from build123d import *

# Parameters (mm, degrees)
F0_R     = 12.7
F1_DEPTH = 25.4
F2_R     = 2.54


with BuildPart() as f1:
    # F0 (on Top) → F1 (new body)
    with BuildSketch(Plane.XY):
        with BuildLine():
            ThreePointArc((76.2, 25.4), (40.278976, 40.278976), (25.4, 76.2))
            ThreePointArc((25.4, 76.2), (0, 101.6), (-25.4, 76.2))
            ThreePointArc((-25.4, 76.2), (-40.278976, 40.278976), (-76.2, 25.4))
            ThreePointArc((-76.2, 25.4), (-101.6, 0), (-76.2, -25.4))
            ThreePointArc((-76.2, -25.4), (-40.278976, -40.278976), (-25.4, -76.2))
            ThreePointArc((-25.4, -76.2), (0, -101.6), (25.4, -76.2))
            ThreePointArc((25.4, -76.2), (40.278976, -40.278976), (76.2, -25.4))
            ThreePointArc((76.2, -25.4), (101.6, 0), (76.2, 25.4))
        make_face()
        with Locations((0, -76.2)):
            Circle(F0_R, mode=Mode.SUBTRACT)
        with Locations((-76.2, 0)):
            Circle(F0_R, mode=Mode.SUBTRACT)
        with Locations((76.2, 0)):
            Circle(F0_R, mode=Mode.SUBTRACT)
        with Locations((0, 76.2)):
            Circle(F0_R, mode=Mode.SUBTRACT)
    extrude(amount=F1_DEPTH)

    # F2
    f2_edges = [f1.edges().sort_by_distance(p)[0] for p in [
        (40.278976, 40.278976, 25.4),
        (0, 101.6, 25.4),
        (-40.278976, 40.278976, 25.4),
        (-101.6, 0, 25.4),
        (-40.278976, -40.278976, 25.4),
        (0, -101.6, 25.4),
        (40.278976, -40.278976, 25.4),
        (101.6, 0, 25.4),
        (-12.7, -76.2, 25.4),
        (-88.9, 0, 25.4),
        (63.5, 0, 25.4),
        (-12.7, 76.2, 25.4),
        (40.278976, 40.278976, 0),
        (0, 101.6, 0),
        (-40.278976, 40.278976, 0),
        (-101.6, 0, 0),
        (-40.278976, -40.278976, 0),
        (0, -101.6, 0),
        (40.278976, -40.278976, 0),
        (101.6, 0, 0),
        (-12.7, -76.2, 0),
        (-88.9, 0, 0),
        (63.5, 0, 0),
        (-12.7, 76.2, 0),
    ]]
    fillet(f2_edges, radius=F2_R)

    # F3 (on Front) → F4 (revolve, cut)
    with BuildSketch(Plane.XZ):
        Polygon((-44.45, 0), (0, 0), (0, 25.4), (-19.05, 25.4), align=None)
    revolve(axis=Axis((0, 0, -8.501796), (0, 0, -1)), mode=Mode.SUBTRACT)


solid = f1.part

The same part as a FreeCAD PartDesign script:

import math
import FreeCAD as App
import Part
import Sketcher

V = App.Vector
Q = App.Units.Quantity


def edges_at(feature, points):
    """Names of the edges that pass closest to the given points."""
    edges = feature.Shape.Edges
    near = lambda p: min(range(len(edges)), key=lambda i: edges[i].distToShape(Part.Vertex(*p))[0])
    return sorted({f"Edge{near(p) + 1}" for p in points})


def add_polygon(sketch, points):
    """Adds a closed chain of lines whose ends are joined by coincident constraints."""
    first, n = sketch.GeometryCount, len(points)
    for a, b in zip(points, points[1:] + points[:1]):
        sketch.addGeometry(Part.LineSegment(App.Vector(*a, 0), App.Vector(*b, 0)), False)
    for i in range(n):
        sketch.addConstraint(Sketcher.Constraint("Coincident", first + i, 2, first + (i + 1) % n, 1))

doc = App.newDocument("Part")
params = doc.addObject("Spreadsheet::Sheet", "Params")
for row, (alias, value) in enumerate([
    ("sketch1_diameter", "1 in"),
    ("sketch1_radius", "2.0000001 in"),
    ("sketch1_radius2", "1 in"),
    ("pad1_length", "1 in"),
    ("fillet_radius", "0.1 in"),
    ("sketch2_height", "1 in"),
    ("sketch2_width", "1.75 in"),
    ("groove_angle", "360 deg"),
], start=1):
    params.set(f"A{row}", alias)
    params.set(f"B{row}", "=" + value)
    params.setAlias(f"B{row}", alias)

body = doc.addObject("PartDesign::Body", "Body")

sketch1 = body.newObject("Sketcher::SketchObject", "Sketch")
sketch1.AttachmentSupport = (doc.getObject("XY_Plane"), [""])
sketch1.MapMode = "FlatFace"
sketch1.addGeometry(Part.ArcOfCircle(Part.Circle(V(76, 76, 0), V(0, 0, 1), 51), math.radians(-180), math.radians(-90)), False)
sketch1.addGeometry(Part.ArcOfCircle(Part.Circle(V(0, 76, 0), V(0, 0, 1), 25), math.radians(0), math.radians(180)), False)
sketch1.addGeometry(Part.ArcOfCircle(Part.Circle(V(-76, 76, 0), V(0, 0, 1), 51), math.radians(-90), math.radians(0)), False)
sketch1.addGeometry(Part.ArcOfCircle(Part.Circle(V(-76, 0, 0), V(0, 0, 1), 25), math.radians(90), math.radians(270)), False)
sketch1.addGeometry(Part.ArcOfCircle(Part.Circle(V(-76, -76, 0), V(0, 0, 1), 51), math.radians(0), math.radians(90)), False)
sketch1.addGeometry(Part.ArcOfCircle(Part.Circle(V(0, -76, 0), V(0, 0, 1), 25), math.radians(180), math.radians(360)), False)
sketch1.addGeometry(Part.ArcOfCircle(Part.Circle(V(76, -76, 0), V(0, 0, 1), 51), math.radians(90), math.radians(180)), False)
sketch1.addGeometry(Part.ArcOfCircle(Part.Circle(V(76, 0, 0), V(0, 0, 1), 25), math.radians(-90), math.radians(90)), False)
sketch1.addGeometry(Part.Circle(V(0, -76, 0), V(0, 0, 1), 13), False)
sketch1.addGeometry(Part.Circle(V(-76, 0, 0), V(0, 0, 1), 13), False)
sketch1.addGeometry(Part.Circle(V(76, 0, 0), V(0, 0, 1), 13), False)
sketch1.addGeometry(Part.Circle(V(0, 76, 0), V(0, 0, 1), 13), False)
sketch1.addConstraint(Sketcher.Constraint("Tangent", 0, 1, 1, 1))
sketch1.addConstraint(Sketcher.Constraint("Tangent", 1, 2, 2, 2))
sketch1.addConstraint(Sketcher.Constraint("Tangent", 2, 1, 3, 1))
sketch1.addConstraint(Sketcher.Constraint("Tangent", 3, 2, 4, 2))
sketch1.addConstraint(Sketcher.Constraint("Tangent", 4, 1, 5, 1))
sketch1.addConstraint(Sketcher.Constraint("Tangent", 5, 2, 6, 2))
sketch1.addConstraint(Sketcher.Constraint("Tangent", 6, 1, 7, 1))
sketch1.addConstraint(Sketcher.Constraint("Tangent", 7, 2, 0, 2))
sketch1.addConstraint(Sketcher.Constraint("Coincident", 8, 3, 5, 3))
sketch1.addConstraint(Sketcher.Constraint("Coincident", 9, 3, 3, 3))
sketch1.addConstraint(Sketcher.Constraint("Coincident", 10, 3, 7, 3))
sketch1.addConstraint(Sketcher.Constraint("Coincident", 11, 3, 1, 3))
sketch1.addConstraint(Sketcher.Constraint("Equal", 0, 2))
sketch1.addConstraint(Sketcher.Constraint("Equal", 1, 3))
sketch1.addConstraint(Sketcher.Constraint("Equal", 2, 4))
sketch1.addConstraint(Sketcher.Constraint("Equal", 3, 5))
sketch1.addConstraint(Sketcher.Constraint("Equal", 4, 6))
sketch1.addConstraint(Sketcher.Constraint("Equal", 5, 7))
sketch1.addConstraint(Sketcher.Constraint("Equal", 8, 9))
sketch1.addConstraint(Sketcher.Constraint("Equal", 9, 10))
sketch1.addConstraint(Sketcher.Constraint("Equal", 10, 11))
sketch1.addConstraint(Sketcher.Constraint("Symmetric", 0, 3, 4, 3, -1, 1))
sketch1.addConstraint(Sketcher.Constraint("Symmetric", 0, 3, 2, 3, -2))
sketch1.addConstraint(Sketcher.Constraint("Horizontal", 0, 3, 1, 3))
sketch1.addConstraint(Sketcher.Constraint("Horizontal", 4, 3, 5, 3))
sketch1.addConstraint(Sketcher.Constraint("Vertical", 2, 3, 3, 3))
sketch1.addConstraint(Sketcher.Constraint("Vertical", 6, 3, 7, 3))
sketch1.addConstraint(Sketcher.Constraint("Diameter", 8, Q("1 in")))
sketch1.addConstraint(Sketcher.Constraint("Radius", 0, Q("2.0000001 in")))
sketch1.addConstraint(Sketcher.Constraint("Radius", 1, Q("1 in")))
sketch1.setExpression("Constraints[27]", "Params.sketch1_diameter")
sketch1.setExpression("Constraints[28]", "Params.sketch1_radius")
sketch1.setExpression("Constraints[29]", "Params.sketch1_radius2")
pad1 = body.newObject("PartDesign::Pad", "Pad")
pad1.Profile = sketch1
pad1.setExpression("Length", "Params.pad1_length")
doc.recompute()

fillet = body.newObject("PartDesign::Fillet", "Fillet")
fillet.Base = (pad1, edges_at(pad1, [
    (40.279, 40.279, 25.4),
    (0, 101.6, 25.4),
    (-40.279, 40.279, 25.4),
    (-101.6, 0, 25.4),
    (-40.279, -40.279, 25.4),
    (0, -101.6, 25.4),
    (40.279, -40.279, 25.4),
    (101.6, 0, 25.4),
    (-12.7, -76.2, 25.4),
    (-88.9, 0, 25.4),
    (63.5, 0, 25.4),
    (-12.7, 76.2, 25.4),
    (40.279, 40.279, 0),
    (0, 101.6, 0),
    (-40.279, 40.279, 0),
    (-101.6, 0, 0),
    (-40.279, -40.279, 0),
    (0, -101.6, 0),
    (40.279, -40.279, 0),
    (101.6, 0, 0),
    (-12.7, -76.2, 0),
    (-88.9, 0, 0),
    (63.5, 0, 0),
    (-12.7, 76.2, 0),
]))
fillet.setExpression("Radius", "Params.fillet_radius")

sketch2 = body.newObject("Sketcher::SketchObject", "Sketch001")
sketch2.AttachmentSupport = (doc.getObject("XZ_Plane"), [""])
sketch2.MapMode = "FlatFace"
add_polygon(sketch2, [(-44, 0), (0, 0), (0, 25), (-19, 25)])
sketch2.addConstraint(Sketcher.Constraint("Horizontal", 0))
sketch2.addConstraint(Sketcher.Constraint("Vertical", 1))
sketch2.addConstraint(Sketcher.Constraint("Horizontal", 2))
sketch2.addConstraint(Sketcher.Constraint("Coincident", 0, 2, -1, 1))
sketch2.addConstraint(Sketcher.Constraint("DistanceY", 1, 1, 1, 2, Q("1 in")))
sketch2.addConstraint(Sketcher.Constraint("Angle", 3, Q("-135 deg")))
sketch2.addConstraint(Sketcher.Constraint("DistanceX", 0, 1, 0, 2, Q("1.75 in")))
sketch2.setExpression("Constraints[8]", "Params.sketch2_height")
sketch2.setExpression("Constraints[10]", "Params.sketch2_width")
groove = body.newObject("PartDesign::Groove", "Groove")
groove.Profile = sketch2
groove.ReferenceAxis = (sketch2, ["V_Axis"])
groove.setExpression("Angle", "Params.groove_angle")

doc.recompute()
